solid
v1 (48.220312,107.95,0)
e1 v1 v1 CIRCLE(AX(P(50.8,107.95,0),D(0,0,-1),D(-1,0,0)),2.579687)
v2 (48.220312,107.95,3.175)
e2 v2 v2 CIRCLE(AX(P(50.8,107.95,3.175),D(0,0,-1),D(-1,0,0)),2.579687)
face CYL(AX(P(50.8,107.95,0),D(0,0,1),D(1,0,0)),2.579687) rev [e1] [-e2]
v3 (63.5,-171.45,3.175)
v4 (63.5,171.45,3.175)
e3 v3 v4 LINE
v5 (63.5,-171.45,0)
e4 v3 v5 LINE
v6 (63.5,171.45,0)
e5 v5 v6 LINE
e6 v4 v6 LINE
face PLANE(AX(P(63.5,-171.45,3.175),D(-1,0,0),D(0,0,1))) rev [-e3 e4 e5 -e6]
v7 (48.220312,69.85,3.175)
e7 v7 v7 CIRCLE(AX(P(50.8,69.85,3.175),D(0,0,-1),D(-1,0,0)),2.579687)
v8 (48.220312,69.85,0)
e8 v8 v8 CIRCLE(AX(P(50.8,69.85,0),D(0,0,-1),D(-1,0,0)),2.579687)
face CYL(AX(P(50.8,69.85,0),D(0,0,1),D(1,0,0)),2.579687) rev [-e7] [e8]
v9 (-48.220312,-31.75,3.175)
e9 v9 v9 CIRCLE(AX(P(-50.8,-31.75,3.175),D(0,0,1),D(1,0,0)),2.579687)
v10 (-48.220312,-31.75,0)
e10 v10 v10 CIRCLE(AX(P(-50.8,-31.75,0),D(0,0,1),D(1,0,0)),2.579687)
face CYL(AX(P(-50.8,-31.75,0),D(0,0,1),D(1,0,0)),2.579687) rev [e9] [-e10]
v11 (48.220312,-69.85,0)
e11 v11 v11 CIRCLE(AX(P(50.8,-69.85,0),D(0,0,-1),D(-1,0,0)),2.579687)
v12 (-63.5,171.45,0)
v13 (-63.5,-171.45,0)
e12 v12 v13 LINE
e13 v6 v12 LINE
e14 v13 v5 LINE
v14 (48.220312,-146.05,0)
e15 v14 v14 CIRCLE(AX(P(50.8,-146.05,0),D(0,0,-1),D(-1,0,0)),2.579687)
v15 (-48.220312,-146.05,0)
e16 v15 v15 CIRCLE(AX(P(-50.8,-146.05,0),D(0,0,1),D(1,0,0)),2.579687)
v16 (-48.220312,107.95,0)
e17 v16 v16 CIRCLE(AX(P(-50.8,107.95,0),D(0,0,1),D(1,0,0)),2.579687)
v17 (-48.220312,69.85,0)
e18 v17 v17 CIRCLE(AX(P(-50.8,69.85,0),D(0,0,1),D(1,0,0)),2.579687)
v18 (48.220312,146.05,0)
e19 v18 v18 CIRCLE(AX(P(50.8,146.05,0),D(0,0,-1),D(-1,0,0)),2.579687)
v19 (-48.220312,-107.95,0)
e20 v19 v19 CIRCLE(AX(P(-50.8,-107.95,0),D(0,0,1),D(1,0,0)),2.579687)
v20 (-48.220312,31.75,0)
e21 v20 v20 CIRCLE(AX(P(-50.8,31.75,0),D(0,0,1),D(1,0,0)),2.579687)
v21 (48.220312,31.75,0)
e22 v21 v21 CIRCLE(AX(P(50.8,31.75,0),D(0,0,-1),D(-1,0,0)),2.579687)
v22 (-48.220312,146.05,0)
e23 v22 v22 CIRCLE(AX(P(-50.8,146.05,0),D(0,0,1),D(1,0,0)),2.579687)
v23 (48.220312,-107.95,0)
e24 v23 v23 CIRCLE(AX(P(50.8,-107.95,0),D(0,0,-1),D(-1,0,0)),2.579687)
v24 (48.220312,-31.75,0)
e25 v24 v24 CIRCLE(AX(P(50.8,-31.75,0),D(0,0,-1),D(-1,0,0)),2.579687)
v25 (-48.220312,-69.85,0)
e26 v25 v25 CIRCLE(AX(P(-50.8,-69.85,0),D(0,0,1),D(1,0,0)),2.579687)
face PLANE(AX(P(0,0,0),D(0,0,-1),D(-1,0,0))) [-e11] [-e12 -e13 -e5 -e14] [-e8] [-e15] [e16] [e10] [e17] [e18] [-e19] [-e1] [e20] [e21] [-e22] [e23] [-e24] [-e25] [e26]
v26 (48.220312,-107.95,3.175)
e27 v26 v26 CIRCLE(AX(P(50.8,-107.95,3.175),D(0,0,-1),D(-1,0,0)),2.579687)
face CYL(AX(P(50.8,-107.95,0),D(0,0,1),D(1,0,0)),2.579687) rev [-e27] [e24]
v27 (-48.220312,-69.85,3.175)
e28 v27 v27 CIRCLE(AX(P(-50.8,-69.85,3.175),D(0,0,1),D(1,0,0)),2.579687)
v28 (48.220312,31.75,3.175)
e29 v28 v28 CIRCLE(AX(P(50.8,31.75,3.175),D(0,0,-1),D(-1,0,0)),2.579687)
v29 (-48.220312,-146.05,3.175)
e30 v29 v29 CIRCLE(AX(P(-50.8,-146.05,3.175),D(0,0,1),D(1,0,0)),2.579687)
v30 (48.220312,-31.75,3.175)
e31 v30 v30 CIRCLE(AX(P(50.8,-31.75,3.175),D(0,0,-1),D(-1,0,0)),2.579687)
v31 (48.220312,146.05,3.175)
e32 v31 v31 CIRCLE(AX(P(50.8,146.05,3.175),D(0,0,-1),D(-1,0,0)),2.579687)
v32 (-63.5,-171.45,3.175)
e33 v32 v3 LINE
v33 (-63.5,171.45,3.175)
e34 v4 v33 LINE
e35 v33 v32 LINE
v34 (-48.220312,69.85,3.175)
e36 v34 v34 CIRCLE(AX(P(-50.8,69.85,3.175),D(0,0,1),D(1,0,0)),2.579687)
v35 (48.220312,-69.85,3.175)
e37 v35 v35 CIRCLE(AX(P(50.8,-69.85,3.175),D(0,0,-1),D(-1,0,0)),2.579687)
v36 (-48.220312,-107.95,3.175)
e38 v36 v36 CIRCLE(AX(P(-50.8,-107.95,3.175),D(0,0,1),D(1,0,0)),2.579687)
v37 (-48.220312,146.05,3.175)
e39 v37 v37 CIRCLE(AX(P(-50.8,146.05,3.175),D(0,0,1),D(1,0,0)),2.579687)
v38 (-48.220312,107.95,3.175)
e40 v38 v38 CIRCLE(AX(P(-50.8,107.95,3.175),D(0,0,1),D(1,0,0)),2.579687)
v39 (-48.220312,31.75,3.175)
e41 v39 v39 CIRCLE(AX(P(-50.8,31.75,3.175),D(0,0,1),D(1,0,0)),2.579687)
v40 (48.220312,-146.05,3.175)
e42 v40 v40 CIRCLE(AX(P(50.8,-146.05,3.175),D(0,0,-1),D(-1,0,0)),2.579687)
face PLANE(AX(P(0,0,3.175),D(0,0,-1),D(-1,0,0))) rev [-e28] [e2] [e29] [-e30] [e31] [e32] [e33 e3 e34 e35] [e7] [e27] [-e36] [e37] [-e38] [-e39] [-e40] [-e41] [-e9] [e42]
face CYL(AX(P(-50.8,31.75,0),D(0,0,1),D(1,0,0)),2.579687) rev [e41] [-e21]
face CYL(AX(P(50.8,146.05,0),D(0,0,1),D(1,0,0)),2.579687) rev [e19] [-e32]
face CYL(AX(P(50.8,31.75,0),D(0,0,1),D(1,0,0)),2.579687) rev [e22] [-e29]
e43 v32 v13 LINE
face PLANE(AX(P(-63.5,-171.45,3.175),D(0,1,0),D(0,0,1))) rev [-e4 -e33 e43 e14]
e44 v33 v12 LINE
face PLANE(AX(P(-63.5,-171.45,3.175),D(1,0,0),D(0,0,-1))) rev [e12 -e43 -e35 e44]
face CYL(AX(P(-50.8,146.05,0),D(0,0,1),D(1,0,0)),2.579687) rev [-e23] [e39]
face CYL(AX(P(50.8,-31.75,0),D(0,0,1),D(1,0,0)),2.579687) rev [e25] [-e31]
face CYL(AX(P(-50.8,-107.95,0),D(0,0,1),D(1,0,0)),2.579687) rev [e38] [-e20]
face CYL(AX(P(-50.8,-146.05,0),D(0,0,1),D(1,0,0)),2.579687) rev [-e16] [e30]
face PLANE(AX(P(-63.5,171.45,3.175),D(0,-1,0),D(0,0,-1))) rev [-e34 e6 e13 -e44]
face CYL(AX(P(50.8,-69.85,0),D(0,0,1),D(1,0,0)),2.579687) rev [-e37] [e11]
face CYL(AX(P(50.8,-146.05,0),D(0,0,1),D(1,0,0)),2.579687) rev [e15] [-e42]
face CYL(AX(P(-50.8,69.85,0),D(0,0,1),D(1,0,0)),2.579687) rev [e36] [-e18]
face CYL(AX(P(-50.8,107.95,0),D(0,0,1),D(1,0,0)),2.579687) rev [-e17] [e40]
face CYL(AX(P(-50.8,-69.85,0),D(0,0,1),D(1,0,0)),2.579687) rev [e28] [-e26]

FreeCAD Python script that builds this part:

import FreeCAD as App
import Part
import Sketcher

V = App.Vector
Q = App.Units.Quantity


def add_polygon(sketch, points):
    """Adds a closed chain of lines whose ends are joined by coincident constraints."""
    first, n = sketch.GeometryCount, len(points)
    for a, b in zip(points, points[1:] + points[:1]):
        sketch.addGeometry(Part.LineSegment(App.Vector(*a, 0), App.Vector(*b, 0)), False)
    for i in range(n):
        sketch.addConstraint(Sketcher.Constraint("Coincident", first + i, 2, first + (i + 1) % n, 1))

doc = App.newDocument("Part")
body = doc.addObject("PartDesign::Body", "Body")

sketch1 = body.newObject("Sketcher::SketchObject", "Sketch")
sketch1.AttachmentSupport = (doc.getObject("XY_Plane"), [""])
sketch1.MapMode = "FlatFace"
add_polygon(sketch1, [(-63.5, 171.45), (-63.5, -171.45), (63.5, -171.45), (63.5, 171.45)])
sketch1.addConstraint([
    Sketcher.Constraint("Vertical", 0),
    Sketcher.Constraint("Horizontal", 1),
    Sketcher.Constraint("Vertical", 2),
    Sketcher.Constraint("Horizontal", 3),
    Sketcher.Constraint("Symmetric", 0, 2, 2, 2, -1, 1),
    Sketcher.Constraint("DistanceX", 1, 1, 1, 2, Q("5 in")),
    Sketcher.Constraint("DistanceY", 0, 2, 0, 1, Q("13.5 in")),
])
pad1 = body.newObject("PartDesign::Pad", "Pad")
pad1.Profile = sketch1
pad1.Length = Q("0.125 in")

sketch2 = body.newObject("Sketcher::SketchObject", "Sketch001")
sketch2.AttachmentSupport = (doc.getObject("XY_Plane"), [""])
sketch2.MapMode = "FlatFace"
sketch2.AttachmentOffset = App.Placement(V(0, 0, 0.125 * 25.4), App.Rotation())
sketch2.addGeometry([
    Part.Circle(V(-50.8, -146.05, 0), V(0, 0, 1), 2.579687),
    Part.Circle(V(-50.8, -107.95, 0), V(0, 0, 1), 2.579687),
    Part.Circle(V(-50.8, -69.85, 0), V(0, 0, 1), 2.579687),
    Part.Circle(V(-50.8, 69.85, 0), V(0, 0, 1), 2.579687),
    Part.Circle(V(-50.8, 107.95, 0), V(0, 0, 1), 2.579687),
    Part.Circle(V(-50.8, 146.05, 0), V(0, 0, 1), 2.579687),
    Part.Circle(V(-50.8, 31.75, 0), V(0, 0, 1), 2.579687),
    Part.Circle(V(-50.8, -31.75, 0), V(0, 0, 1), 2.579687),
], False)
sketch2.addConstraint([
    Sketcher.Constraint("Equal", 0, 1),
    Sketcher.Constraint("Equal", 1, 2),
    Sketcher.Constraint("Equal", 2, 3),
    Sketcher.Constraint("Equal", 3, 4),
    Sketcher.Constraint("Equal", 4, 5),
    Sketcher.Constraint("Equal", 5, 6),
    Sketcher.Constraint("Equal", 6, 7),
    Sketcher.Constraint("Symmetric", 2, 3, 3, 3, -1),
    Sketcher.Constraint("Symmetric", 1, 3, 4, 3, -1),
    Sketcher.Constraint("Symmetric", 0, 3, 5, 3, -1),
    Sketcher.Constraint("Symmetric", 6, 3, 7, 3, -1),
    Sketcher.Constraint("Vertical", 0, 3, 1, 3),
    Sketcher.Constraint("Vertical", 1, 3, 2, 3),
    Sketcher.Constraint("Vertical", 5, 3, 6, 3),
    Sketcher.Constraint("Diameter", 0, Q("0.203125 in")),
    Sketcher.Constraint("DistanceX", 0, 3, -1, 1, Q("2 in")),
    Sketcher.Constraint("DistanceY", 0, 3, 2, 3, Q("3 in")),
    Sketcher.Constraint("DistanceY", 1, 3, 3, 3, Q("7 in")),
    Sketcher.Constraint("DistanceY", 6, 3, 4, 3, Q("3 in")),
    Sketcher.Constraint("DistanceY", 0, 3, 1, 3, Q("1.5 in")),
])
pocket1 = body.newObject("PartDesign::Pocket", "Pocket")
pocket1.Profile = sketch2
pocket1.Length = Q("0.125 in")
doc.recompute()

mirrored = body.newObject("PartDesign::Mirrored", "Mirrored")
mirrored.Originals = [pocket1]
mirrored.MirrorPlane = (doc.getObject("YZ_Plane"), [""])
body.Tip = mirrored

doc.recompute()
